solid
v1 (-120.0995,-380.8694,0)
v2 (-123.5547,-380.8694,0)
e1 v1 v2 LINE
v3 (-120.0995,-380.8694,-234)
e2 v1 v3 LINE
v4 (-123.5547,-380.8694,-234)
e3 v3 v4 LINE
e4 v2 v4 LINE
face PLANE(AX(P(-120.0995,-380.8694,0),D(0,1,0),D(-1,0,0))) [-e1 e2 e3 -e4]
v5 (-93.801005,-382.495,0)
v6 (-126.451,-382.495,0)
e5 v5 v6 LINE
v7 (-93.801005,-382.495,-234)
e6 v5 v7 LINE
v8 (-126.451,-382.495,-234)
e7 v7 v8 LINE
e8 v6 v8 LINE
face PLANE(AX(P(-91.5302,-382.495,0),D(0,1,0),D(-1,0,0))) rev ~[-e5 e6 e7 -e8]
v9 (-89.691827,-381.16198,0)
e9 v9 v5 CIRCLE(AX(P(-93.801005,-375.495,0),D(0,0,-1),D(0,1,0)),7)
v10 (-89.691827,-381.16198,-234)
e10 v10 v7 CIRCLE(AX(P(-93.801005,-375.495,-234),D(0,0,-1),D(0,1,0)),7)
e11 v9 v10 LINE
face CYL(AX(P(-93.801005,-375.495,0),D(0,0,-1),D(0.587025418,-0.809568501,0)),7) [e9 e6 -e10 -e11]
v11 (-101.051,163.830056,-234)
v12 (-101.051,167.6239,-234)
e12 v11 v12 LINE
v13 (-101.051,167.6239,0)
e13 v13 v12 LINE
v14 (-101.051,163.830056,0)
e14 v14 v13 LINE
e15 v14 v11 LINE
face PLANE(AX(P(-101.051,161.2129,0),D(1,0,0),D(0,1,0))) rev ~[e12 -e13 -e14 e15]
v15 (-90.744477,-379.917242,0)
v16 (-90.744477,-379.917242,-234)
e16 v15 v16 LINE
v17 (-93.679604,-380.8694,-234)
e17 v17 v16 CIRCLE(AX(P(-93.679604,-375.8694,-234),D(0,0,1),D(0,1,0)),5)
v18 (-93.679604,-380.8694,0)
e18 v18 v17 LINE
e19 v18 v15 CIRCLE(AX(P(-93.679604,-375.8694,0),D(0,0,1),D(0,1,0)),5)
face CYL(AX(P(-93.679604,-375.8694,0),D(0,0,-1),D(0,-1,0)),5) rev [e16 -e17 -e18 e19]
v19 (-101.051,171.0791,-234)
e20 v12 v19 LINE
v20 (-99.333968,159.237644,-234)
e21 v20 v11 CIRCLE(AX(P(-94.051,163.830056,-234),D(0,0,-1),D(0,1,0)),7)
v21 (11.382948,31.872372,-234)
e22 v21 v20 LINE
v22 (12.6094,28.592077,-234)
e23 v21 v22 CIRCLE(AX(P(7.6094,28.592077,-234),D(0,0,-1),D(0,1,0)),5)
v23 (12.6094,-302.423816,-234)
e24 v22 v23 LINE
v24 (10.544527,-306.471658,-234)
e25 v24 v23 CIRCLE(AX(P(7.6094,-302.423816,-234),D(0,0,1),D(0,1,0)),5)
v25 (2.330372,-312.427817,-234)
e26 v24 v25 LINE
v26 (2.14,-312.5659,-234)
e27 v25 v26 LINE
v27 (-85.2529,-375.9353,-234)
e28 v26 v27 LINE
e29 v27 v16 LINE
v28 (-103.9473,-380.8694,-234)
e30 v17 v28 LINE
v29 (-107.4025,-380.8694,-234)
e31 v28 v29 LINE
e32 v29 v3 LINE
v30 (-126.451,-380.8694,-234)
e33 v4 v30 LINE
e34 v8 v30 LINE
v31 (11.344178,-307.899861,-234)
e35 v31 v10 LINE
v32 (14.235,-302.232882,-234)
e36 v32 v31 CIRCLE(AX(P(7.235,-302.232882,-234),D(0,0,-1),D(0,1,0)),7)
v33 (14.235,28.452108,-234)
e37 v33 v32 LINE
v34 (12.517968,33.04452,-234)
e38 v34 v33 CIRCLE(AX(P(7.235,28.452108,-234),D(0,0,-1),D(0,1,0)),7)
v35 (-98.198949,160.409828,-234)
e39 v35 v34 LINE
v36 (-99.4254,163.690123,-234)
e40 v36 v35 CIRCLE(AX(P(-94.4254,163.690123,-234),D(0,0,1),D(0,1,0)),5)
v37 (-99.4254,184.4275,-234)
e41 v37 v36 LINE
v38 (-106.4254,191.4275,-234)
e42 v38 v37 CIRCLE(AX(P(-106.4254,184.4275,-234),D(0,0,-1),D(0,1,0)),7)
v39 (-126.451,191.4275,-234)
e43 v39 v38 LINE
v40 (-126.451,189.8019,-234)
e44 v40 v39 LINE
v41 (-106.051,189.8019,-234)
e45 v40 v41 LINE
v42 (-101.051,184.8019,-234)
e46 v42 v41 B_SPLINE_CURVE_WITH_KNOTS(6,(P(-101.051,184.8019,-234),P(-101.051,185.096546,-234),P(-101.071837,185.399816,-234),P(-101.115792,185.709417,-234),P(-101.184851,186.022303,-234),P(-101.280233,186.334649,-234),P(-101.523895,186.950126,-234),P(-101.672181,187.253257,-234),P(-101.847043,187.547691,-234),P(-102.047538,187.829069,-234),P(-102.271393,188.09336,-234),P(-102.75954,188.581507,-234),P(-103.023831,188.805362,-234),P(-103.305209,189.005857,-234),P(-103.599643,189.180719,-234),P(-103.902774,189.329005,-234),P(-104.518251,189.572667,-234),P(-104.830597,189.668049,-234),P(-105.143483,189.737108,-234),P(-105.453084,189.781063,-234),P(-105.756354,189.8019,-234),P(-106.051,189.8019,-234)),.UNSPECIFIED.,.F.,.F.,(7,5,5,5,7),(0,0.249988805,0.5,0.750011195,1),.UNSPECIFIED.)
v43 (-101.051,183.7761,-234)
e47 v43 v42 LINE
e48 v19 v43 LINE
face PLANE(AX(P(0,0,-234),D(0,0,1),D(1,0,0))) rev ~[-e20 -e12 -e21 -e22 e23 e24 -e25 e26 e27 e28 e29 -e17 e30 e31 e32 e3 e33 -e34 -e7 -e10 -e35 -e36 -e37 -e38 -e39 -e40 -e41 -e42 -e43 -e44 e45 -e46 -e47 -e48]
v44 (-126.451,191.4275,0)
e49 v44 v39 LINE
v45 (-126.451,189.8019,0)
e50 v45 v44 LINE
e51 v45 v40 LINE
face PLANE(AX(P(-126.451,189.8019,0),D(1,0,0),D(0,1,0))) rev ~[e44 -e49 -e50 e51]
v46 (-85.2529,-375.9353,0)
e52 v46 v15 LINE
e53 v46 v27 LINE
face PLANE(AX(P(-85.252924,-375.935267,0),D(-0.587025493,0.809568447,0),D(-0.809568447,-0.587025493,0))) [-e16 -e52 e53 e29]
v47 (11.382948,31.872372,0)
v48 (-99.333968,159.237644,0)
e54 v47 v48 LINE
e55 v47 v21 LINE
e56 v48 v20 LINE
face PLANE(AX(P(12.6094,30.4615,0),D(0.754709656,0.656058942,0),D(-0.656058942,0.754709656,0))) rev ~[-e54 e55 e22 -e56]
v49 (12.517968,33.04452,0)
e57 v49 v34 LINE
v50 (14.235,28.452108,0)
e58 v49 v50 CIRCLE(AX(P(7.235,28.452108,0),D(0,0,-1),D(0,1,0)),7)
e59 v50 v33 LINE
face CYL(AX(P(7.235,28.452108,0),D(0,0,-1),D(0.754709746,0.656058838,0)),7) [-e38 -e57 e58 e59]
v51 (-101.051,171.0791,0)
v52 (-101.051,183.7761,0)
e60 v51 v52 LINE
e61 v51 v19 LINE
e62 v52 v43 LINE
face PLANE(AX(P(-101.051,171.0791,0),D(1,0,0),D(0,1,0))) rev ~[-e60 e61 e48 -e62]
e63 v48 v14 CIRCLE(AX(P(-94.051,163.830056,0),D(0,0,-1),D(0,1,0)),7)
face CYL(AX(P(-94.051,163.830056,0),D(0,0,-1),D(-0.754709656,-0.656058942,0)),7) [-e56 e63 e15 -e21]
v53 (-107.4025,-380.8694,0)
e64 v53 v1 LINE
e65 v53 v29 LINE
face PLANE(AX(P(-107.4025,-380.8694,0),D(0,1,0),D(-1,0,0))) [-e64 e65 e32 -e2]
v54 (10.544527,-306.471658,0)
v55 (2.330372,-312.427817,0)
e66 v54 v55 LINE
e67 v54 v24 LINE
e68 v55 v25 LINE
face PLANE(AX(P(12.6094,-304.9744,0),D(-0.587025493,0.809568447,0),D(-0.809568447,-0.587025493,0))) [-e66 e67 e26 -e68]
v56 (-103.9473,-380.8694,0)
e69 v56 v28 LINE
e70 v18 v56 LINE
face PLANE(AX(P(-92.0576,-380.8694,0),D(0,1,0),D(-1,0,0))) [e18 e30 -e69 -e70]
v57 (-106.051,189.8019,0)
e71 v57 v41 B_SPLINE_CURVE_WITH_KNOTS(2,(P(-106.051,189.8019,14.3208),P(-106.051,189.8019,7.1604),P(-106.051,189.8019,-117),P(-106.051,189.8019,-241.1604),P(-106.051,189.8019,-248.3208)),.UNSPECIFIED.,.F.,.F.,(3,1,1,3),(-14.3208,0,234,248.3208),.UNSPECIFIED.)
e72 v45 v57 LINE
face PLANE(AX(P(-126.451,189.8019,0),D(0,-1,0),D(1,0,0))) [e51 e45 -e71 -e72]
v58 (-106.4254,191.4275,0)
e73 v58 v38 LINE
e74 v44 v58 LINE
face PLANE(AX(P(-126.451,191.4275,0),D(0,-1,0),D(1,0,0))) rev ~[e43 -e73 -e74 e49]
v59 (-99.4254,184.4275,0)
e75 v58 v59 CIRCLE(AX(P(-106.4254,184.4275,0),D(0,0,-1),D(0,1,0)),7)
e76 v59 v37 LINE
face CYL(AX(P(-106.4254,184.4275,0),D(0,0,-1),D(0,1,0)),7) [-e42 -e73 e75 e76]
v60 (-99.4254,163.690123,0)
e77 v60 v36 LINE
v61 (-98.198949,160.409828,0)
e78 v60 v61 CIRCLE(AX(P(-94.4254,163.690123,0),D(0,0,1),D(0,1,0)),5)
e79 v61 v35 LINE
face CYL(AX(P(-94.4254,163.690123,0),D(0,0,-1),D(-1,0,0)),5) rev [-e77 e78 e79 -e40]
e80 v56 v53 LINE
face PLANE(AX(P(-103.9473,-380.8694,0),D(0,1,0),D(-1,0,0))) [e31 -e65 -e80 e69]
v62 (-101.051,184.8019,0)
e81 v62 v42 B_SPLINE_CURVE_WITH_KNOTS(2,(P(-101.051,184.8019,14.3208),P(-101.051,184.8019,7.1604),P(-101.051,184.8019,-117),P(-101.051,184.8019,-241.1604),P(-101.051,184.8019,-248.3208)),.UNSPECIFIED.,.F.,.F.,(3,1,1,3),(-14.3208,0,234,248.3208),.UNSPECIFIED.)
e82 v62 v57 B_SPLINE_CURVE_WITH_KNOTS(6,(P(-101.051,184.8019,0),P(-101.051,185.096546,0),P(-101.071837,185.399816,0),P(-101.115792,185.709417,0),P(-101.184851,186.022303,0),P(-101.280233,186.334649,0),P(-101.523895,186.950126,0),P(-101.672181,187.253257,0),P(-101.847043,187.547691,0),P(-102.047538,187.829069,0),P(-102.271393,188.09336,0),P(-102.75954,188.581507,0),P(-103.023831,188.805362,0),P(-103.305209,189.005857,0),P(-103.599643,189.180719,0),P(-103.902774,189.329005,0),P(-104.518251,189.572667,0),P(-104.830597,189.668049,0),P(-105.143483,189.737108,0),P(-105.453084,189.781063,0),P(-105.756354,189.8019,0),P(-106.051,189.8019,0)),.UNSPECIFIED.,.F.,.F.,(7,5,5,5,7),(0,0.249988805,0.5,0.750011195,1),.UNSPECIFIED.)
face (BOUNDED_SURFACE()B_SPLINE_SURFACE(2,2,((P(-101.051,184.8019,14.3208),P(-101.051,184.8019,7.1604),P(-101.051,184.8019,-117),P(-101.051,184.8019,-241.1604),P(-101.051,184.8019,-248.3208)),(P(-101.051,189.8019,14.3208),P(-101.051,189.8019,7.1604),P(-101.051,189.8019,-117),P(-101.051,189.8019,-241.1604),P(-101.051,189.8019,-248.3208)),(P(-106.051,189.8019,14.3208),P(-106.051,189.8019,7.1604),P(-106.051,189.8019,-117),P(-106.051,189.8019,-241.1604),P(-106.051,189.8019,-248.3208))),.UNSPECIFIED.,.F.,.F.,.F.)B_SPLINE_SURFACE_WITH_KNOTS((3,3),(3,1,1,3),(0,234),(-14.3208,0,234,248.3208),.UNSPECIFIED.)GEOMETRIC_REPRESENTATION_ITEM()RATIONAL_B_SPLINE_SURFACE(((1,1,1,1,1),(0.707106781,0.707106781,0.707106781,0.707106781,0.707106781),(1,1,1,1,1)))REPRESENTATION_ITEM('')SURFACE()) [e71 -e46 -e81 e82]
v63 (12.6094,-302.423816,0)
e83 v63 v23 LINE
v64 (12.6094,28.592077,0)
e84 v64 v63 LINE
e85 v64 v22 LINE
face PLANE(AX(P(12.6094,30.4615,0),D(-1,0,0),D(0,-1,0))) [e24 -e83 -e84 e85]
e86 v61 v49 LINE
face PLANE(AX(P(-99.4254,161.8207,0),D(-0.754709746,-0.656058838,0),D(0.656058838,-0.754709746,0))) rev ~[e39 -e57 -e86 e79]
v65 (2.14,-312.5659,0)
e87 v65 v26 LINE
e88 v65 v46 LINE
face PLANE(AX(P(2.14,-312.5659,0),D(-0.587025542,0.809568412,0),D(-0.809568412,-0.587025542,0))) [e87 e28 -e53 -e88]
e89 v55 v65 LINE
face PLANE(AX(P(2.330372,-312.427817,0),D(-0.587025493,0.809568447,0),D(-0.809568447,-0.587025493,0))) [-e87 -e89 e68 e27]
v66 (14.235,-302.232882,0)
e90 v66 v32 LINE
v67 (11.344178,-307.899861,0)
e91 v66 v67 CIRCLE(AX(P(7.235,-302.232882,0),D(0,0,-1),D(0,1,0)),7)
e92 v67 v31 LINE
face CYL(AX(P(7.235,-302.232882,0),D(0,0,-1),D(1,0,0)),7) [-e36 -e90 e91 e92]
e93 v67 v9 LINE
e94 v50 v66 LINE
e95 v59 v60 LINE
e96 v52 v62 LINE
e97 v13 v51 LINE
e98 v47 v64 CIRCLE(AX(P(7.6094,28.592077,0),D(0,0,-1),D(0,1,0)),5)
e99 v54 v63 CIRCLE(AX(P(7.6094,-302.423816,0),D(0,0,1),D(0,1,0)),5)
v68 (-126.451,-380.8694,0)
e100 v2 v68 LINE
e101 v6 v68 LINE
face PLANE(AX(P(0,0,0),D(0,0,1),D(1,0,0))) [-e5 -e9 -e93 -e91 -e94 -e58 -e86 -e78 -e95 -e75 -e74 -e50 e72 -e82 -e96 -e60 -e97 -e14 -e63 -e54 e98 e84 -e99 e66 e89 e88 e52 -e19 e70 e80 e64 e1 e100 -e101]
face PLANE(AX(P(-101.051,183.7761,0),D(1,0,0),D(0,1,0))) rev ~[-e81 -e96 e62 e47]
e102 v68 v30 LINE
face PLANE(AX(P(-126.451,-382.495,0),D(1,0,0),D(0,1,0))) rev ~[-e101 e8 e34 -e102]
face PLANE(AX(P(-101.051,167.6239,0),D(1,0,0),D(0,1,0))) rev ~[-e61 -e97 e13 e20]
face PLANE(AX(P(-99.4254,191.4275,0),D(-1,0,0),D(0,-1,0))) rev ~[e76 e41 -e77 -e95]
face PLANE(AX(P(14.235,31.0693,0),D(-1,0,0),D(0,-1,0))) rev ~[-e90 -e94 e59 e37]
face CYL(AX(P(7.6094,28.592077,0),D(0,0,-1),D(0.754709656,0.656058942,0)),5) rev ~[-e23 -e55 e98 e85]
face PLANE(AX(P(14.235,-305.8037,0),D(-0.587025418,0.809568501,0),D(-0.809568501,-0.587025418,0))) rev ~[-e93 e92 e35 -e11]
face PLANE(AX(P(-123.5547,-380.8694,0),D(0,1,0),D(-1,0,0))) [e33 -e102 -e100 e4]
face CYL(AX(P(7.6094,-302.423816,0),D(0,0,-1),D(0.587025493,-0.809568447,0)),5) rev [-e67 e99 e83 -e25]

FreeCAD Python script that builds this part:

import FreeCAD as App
import Part
import Sketcher
Q = App.Units.Quantity


def edges_at(feature, points):
    """Names of the edges that pass closest to the given points."""
    edges = feature.Shape.Edges
    near = lambda p: min(range(len(edges)), key=lambda i: edges[i].distToShape(Part.Vertex(*p))[0])
    return sorted({f"Edge{near(p) + 1}" for p in points})


def add_polygon(sketch, points):
    """Adds a closed chain of lines whose ends are joined by coincident constraints."""
    first, n = sketch.GeometryCount, len(points)
    for a, b in zip(points, points[1:] + points[:1]):
        sketch.addGeometry(Part.LineSegment(App.Vector(*a, 0), App.Vector(*b, 0)), False)
    for i in range(n):
        sketch.addConstraint(Sketcher.Constraint("Coincident", first + i, 2, first + (i + 1) % n, 1))

doc = App.newDocument("Part")
body = doc.addObject("PartDesign::Body", "Body")

sketch1 = body.newObject("Sketcher::SketchObject", "Sketch")
sketch1.AttachmentSupport = (doc.getObject("XY_Plane"), [""])
sketch1.MapMode = "FlatFace"
add_polygon(sketch1, [(-101.1, 161.2), (12.6, 30.5), (12.6, -305), (2.1, -312.6), (-85.3, -375.9), (-92.1, -380.9), (-126.5, -380.9), (-126.5, -382.5), (-91.5, -382.5), (14.2, -305.8), (14.2, 31.1), (-99.4, 161.8), (-99.4, 191.4), (-126.5, 191.4), (-126.5, 189.8), (-101.1, 189.8)])
sketch1.addConstraint([
    Sketcher.Constraint("Vertical", 1),
    Sketcher.Constraint("Horizontal", 5),
    Sketcher.Constraint("Vertical", 6),
    Sketcher.Constraint("Horizontal", 7),
    Sketcher.Constraint("Vertical", 9),
    Sketcher.Constraint("Vertical", 11),
    Sketcher.Constraint("Horizontal", 12),
    Sketcher.Constraint("Vertical", 13),
    Sketcher.Constraint("Horizontal", 14),
    Sketcher.Constraint("Vertical", 15),
    Sketcher.Constraint("Parallel", 2, 3),
    Sketcher.Constraint("Parallel", 3, 4),
    Sketcher.Constraint("Parallel", 4, 8),
    Sketcher.Constraint("Parallel", 0, 10),
    Sketcher.Constraint("Vertical", 6, 2, 12, 2),
    Sketcher.Constraint("Equal", 6, 13),
    Sketcher.Constraint("Equal", 0, 10),
    Sketcher.Constraint("DistanceX", 14, 1, 14, 2, Q("1 in")),
    Sketcher.Constraint("DistanceY", 6, 2, 6, 1, Q("0.064 in")),
    Sketcher.Constraint("Angle", 0, Q("-49 deg")),
    Sketcher.Constraint("DistanceX", 1, 2, 8, 2, Q("0.064 in")),
    Sketcher.Constraint("Distance", 3, Q("4.25 in")),
    Sketcher.Constraint("DistanceY", 4, 2, 1, 2, Q("2.988 in")),
    Sketcher.Constraint("DistanceX", 5, 2, 5, 1, 34.3934),
    Sketcher.Constraint("DistanceX", 7, 1, 7, 2, 34.9208),
    Sketcher.Constraint("DistanceY", 1, 2, 1, 1, 335.436),
    Sketcher.Constraint("DistanceY", 9, 1, 9, 2, 336.873),
    Sketcher.Constraint("DistanceY", 11, 1, 11, 2, 29.6068),
    Sketcher.Constraint("DistanceY", 3, 2, -1, 1, Q("14.8006 in")),
    Sketcher.Constraint("DistanceY", -1, 1, 9, 2, Q("1.2232 in")),
    Sketcher.Constraint("DistanceY", -1, 1, 10, 2, Q("6.3709 in")),
    Sketcher.Constraint("DistanceX", -1, 1, 0, 2, 12.6094),
])
pad1 = body.newObject("PartDesign::Pad", "Pad")
pad1.Profile = sketch1
pad1.Length = Q("9.2125984 in")
pad1.Reversed = True
doc.recompute()

fillet = body.newObject("PartDesign::Fillet", "Fillet")
fillet.Base = (pad1, edges_at(pad1, [
    (-101.051, 189.802, -117),
    (-99.425, 161.821, -117),
    (12.609, 30.462, -117),
    (12.609, -304.974, -117),
    (-92.058, -380.869, -117),
]))
fillet.Radius = 5
doc.recompute()

fillet2 = body.newObject("PartDesign::Fillet", "Fillet001")
fillet2.Base = (fillet, edges_at(fillet, [
    (-91.53, -382.495, -117),
    (14.235, -305.804, -117),
    (14.235, 31.069, -117),
    (-101.051, 161.213, -117),
    (-99.425, 191.428, -117),
]))
fillet2.Radius = Q("0.2755906 in")

doc.recompute()
